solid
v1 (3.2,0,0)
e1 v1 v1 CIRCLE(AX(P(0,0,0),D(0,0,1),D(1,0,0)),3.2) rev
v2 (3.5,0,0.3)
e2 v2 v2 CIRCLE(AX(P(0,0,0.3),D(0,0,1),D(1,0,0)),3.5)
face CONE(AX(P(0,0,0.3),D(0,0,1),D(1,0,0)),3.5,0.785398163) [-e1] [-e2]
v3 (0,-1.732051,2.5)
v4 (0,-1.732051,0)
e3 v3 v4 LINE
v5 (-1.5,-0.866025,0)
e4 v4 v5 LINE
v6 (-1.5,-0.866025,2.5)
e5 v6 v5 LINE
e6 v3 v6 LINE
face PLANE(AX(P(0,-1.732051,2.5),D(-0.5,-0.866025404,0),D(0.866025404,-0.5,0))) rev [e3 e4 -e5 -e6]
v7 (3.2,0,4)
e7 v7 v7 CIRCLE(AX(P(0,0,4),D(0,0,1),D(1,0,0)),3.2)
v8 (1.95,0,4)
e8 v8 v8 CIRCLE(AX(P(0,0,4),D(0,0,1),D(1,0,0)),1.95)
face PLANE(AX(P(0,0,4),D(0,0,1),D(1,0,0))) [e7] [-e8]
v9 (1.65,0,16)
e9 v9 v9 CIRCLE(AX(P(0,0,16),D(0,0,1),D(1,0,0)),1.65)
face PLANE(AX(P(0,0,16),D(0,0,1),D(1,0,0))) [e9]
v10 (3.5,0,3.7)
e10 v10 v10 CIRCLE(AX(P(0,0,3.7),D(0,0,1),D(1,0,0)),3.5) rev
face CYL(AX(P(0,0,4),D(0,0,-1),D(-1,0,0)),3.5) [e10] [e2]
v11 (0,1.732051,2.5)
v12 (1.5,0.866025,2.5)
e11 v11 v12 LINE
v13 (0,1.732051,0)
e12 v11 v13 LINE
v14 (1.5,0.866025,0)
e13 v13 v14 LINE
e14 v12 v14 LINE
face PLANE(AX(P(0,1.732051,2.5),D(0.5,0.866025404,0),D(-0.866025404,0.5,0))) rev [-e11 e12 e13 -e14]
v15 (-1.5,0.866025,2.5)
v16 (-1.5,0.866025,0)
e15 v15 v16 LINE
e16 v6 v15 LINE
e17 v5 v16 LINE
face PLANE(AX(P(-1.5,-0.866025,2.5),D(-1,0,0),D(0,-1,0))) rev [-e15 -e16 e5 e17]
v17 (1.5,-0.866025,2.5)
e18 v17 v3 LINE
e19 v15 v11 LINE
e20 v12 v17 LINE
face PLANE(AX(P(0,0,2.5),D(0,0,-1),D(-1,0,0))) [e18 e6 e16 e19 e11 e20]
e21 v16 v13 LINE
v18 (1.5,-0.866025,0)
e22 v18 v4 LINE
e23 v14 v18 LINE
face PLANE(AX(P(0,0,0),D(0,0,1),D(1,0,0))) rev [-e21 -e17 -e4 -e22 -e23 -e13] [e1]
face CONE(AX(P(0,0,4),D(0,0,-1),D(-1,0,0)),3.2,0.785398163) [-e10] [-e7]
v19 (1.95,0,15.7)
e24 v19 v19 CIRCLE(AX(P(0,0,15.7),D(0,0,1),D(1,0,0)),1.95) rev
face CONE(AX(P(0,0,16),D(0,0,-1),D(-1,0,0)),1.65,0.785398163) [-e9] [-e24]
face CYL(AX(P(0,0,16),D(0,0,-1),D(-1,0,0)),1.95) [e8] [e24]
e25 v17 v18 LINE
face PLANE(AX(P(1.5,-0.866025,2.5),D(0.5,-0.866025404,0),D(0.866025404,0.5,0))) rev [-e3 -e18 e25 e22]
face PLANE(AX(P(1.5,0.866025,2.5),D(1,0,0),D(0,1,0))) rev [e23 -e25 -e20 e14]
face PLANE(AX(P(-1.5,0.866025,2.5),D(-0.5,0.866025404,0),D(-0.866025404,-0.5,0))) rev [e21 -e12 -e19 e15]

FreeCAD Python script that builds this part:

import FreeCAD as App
import Part
import Sketcher
Q = App.Units.Quantity


def edges_at(feature, points):
    """Names of the edges that pass closest to the given points."""
    edges = feature.Shape.Edges
    near = lambda p: min(range(len(edges)), key=lambda i: edges[i].distToShape(Part.Vertex(*p))[0])
    return sorted({f"Edge{near(p) + 1}" for p in points})


def add_polygon(sketch, points):
    """Adds a closed chain of lines whose ends are joined by coincident constraints."""
    first, n = sketch.GeometryCount, len(points)
    for a, b in zip(points, points[1:] + points[:1]):
        sketch.addGeometry(Part.LineSegment(App.Vector(*a, 0), App.Vector(*b, 0)), False)
    for i in range(n):
        sketch.addConstraint(Sketcher.Constraint("Coincident", first + i, 2, first + (i + 1) % n, 1))

doc = App.newDocument("Part")
params = doc.addObject("Spreadsheet::Sheet", "Params")
for row, (alias, value) in enumerate([
    ("sketch1_diameter", "7 mm"),
    ("pad1_length", "4 mm"),
    ("sketch2_diameter", "3.9 mm"),
    ("pad2_length", "12 mm"),
    ("chamfer_size", "0.3 mm"),
    ("pocket1_length", "2.5 mm"),
], start=1):
    params.set(f"A{row}", alias)
    params.set(f"B{row}", "=" + value)
    params.setAlias(f"B{row}", alias)

body = doc.addObject("PartDesign::Body", "Body")

# Sketch on XY plane
sketch1 = body.newObject("Sketcher::SketchObject", "Sketch")
sketch1.AttachmentSupport = (doc.getObject("XY_Plane"), [""])
sketch1.MapMode = "FlatFace"
sketch1.addGeometry(Part.Circle(App.Vector(0, 0, 0), App.Vector(0, 0, 1), 3.5), False)
sketch1.addConstraint([
    Sketcher.Constraint("Coincident", 0, 3, -1, 1),
    Sketcher.Constraint("Diameter", 0, Q("7 mm")),
])
sketch1.setExpression("Constraints[1]", "Params.sketch1_diameter")
pad1 = body.newObject("PartDesign::Pad", "Pad")
pad1.Profile = sketch1
pad1.setExpression("Length", "Params.pad1_length")

# Sketch on XY plane
sketch2 = body.newObject("Sketcher::SketchObject", "Sketch001")
sketch2.AttachmentSupport = (doc.getObject("XY_Plane"), [""])
sketch2.MapMode = "FlatFace"
sketch2.AttachmentOffset = App.Placement(App.Vector(0, 0, 4), App.Rotation())
sketch2.addGeometry(Part.Circle(App.Vector(0, 0, 0), App.Vector(0, 0, 1), 1.9), False)
sketch2.addConstraint([
    Sketcher.Constraint("Coincident", 0, 3, -1, 1),
    Sketcher.Constraint("Diameter", 0, Q("3.9 mm")),
])
sketch2.setExpression("Constraints[1]", "Params.sketch2_diameter")
pad2 = body.newObject("PartDesign::Pad", "Pad001")
pad2.Profile = sketch2
pad2.setExpression("Length", "Params.pad2_length")
doc.recompute()

chamfer = body.newObject("PartDesign::Chamfer", "Chamfer")
chamfer.Base = (pad2, edges_at(pad2, [(-3.5, 0, 0), (-3.5, 0, 4), (-1.95, 0, 16)]))
chamfer.setExpression("Size", "Params.chamfer_size")

# Sketch on XY plane
sketch3 = body.newObject("Sketcher::SketchObject", "Sketch002")
sketch3.AttachmentSupport = (doc.getObject("XY_Plane"), [""])
sketch3.MapMode = "FlatFace"
add_polygon(sketch3, [(-1.5, 0.9), (0, 1.7), (1.5, 0.9), (1.5, -0.9), (0, -1.7), (-1.5, -0.9)])  # lines 0-5
sketch3.addConstraint([
    Sketcher.Constraint("Vertical", 2),
    Sketcher.Constraint("Vertical", 5),
    Sketcher.Constraint("Symmetric", 0, 2, 3, 2, -1, 1),
    Sketcher.Constraint("Symmetric", 1, 2, 4, 2, -1, 1),
    Sketcher.Constraint("PointOnObject", 0, 2, -2),
    Sketcher.Constraint("Parallel", 0, 3),
    Sketcher.Constraint("Horizontal", 2, 2, 4, 2),
    Sketcher.Constraint("Angle", 0, Q("30 deg")),
    Sketcher.Constraint("DistanceX", 4, 2, 2, 2, Q("3 mm")),
    Sketcher.Constraint("DistanceY", 2, 2, 2, 1, Q("1.732051 mm")),
])
pocket1 = body.newObject("PartDesign::Pocket", "Pocket")
pocket1.Profile = sketch3
pocket1.setExpression("Length", "Params.pocket1_length")
pocket1.Reversed = True

doc.recompute()
